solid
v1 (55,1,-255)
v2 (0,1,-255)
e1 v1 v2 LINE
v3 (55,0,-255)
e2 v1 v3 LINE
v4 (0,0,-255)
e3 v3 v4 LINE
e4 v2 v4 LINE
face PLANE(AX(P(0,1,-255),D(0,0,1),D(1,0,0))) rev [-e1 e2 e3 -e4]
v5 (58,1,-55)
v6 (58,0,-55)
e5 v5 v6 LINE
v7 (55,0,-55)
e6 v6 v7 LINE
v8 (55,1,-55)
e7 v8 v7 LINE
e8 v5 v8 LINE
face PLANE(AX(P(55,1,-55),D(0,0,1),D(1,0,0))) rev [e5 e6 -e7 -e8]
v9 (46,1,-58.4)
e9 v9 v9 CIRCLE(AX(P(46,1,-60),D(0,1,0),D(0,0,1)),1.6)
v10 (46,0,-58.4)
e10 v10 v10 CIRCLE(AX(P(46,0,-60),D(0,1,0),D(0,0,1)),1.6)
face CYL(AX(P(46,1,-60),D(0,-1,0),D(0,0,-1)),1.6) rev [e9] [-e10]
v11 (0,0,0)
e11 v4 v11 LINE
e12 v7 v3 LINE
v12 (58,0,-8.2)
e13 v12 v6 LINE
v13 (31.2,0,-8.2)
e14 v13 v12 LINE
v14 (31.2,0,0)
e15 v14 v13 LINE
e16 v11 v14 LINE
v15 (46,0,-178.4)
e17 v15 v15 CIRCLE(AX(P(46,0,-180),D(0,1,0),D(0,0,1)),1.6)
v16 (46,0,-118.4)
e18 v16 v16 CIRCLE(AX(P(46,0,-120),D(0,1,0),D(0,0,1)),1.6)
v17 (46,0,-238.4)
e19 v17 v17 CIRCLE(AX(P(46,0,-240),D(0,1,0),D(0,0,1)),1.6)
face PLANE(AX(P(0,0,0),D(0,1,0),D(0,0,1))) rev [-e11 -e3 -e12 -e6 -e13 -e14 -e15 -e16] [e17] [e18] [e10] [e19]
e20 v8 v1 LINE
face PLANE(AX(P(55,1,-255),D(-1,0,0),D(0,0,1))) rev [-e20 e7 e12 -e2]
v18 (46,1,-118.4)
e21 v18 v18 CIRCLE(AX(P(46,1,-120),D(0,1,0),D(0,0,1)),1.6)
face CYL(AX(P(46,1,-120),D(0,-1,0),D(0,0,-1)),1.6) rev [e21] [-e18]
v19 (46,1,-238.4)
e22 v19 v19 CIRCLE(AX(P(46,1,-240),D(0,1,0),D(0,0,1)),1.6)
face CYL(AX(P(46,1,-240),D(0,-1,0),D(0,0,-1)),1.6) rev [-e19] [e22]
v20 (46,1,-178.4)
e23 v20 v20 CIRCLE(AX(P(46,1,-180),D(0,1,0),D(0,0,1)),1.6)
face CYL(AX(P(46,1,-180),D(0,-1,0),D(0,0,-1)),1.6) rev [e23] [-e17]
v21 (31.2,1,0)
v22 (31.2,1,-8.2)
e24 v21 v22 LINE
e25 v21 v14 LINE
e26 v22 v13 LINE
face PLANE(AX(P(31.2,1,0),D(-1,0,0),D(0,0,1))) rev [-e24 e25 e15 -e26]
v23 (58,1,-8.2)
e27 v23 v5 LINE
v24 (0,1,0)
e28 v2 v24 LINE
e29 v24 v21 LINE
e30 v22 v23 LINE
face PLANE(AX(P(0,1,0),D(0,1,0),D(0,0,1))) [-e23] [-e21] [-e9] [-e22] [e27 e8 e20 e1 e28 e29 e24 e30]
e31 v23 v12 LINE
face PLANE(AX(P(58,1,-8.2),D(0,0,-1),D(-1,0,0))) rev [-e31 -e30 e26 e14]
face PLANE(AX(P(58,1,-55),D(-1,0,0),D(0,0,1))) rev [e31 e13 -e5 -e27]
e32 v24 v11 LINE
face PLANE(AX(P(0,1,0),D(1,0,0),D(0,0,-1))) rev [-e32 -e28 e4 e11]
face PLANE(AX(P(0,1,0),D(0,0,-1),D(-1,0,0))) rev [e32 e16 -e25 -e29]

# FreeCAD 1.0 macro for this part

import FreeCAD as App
import Part
import Sketcher
from FreeCAD import Vector

doc = App.newDocument("Part")
body = doc.addObject("PartDesign::Body", "Body")

sketch1 = body.newObject("Sketcher::SketchObject", "Sketch")
sketch1.AttachmentSupport = (doc.getObject("XZ_Plane"), [""])
sketch1.MapMode = "FlatFace"
sketch1.addGeometry([
    Part.LineSegment(Vector(0, -255, 0), Vector(0, 0, 0)),
    Part.LineSegment(Vector(0, 0, 0), Vector(31.2, 0, 0)),
    Part.LineSegment(Vector(31.2, 0, 0), Vector(31.2, -8.2, 0)),
    Part.LineSegment(Vector(31.2, -8.2, 0), Vector(58, -8.2, 0)),
    Part.LineSegment(Vector(58, -8.2, 0), Vector(58, -55, 0)),
    Part.LineSegment(Vector(58, -55, 0), Vector(55, -55, 0)),
    Part.LineSegment(Vector(55, -55, 0), Vector(55, -255, 0)),
    Part.LineSegment(Vector(55, -255, 0), Vector(0, -255, 0)),
    Part.Circle(Vector(46, -60, 0), Vector(0, 0, 1), 1.6),
    Part.Circle(Vector(46, -120, 0), Vector(0, 0, 1), 1.6),
    Part.Circle(Vector(46, -180, 0), Vector(0, 0, 1), 1.6),
    Part.Circle(Vector(46, -240, 0), Vector(0, 0, 1), 1.6),
], False)
sketch1.addConstraint([
    Sketcher.Constraint("Coincident", 0, 2, 1, 1),
    Sketcher.Constraint("Coincident", 1, 2, 2, 1),
    Sketcher.Constraint("Coincident", 2, 2, 3, 1),
    Sketcher.Constraint("Coincident", 3, 2, 4, 1),
    Sketcher.Constraint("Coincident", 4, 2, 5, 1),
    Sketcher.Constraint("Coincident", 5, 2, 6, 1),
    Sketcher.Constraint("Coincident", 6, 2, 7, 1),
    Sketcher.Constraint("Coincident", 7, 2, 0, 1),
    Sketcher.Constraint("Vertical", 0),
    Sketcher.Constraint("Horizontal", 1),
    Sketcher.Constraint("Vertical", 2),
    Sketcher.Constraint("Horizontal", 3),
    Sketcher.Constraint("Vertical", 4),
    Sketcher.Constraint("Horizontal", 5),
    Sketcher.Constraint("Vertical", 6),
    Sketcher.Constraint("Horizontal", 7),
    Sketcher.Constraint("Coincident", 0, 2, -1, 1),
    Sketcher.Constraint("Equal", 8, 9),
    Sketcher.Constraint("Equal", 9, 10),
    Sketcher.Constraint("Equal", 10, 11),
    Sketcher.Constraint("Vertical", 8, 3, 9, 3),
    Sketcher.Constraint("Vertical", 9, 3, 10, 3),
    Sketcher.Constraint("Vertical", 10, 3, 11, 3),
    Sketcher.Constraint("Diameter", 8, 3.2),
    Sketcher.Constraint("DistanceX", 5, 2, 5, 1, 3.0),
    Sketcher.Constraint("DistanceX", 7, 2, 7, 1, 55.0),
    Sketcher.Constraint("DistanceY", 0, 1, 0, 2, 255.0),
    Sketcher.Constraint("DistanceY", 6, 2, 6, 1, 200.0),
    Sketcher.Constraint("DistanceX", 1, 1, 1, 2, 31.2),
    Sketcher.Constraint("DistanceY", 2, 2, 2, 1, 8.2),
    Sketcher.Constraint("DistanceX", -1, 1, 8, 3, 46.0),
    Sketcher.Constraint("DistanceY", 8, 3, -1, 1, 60.0),
    Sketcher.Constraint("DistanceY", 9, 3, -1, 1, 120.0),
    Sketcher.Constraint("DistanceY", 10, 3, -1, 1, 180.0),
    Sketcher.Constraint("DistanceY", 11, 3, -1, 1, 240.0),
])
pad1 = body.newObject("PartDesign::Pad", "Pad")
pad1.Profile = sketch1
pad1.Length = 1
pad1.Reversed = True

doc.recompute()
